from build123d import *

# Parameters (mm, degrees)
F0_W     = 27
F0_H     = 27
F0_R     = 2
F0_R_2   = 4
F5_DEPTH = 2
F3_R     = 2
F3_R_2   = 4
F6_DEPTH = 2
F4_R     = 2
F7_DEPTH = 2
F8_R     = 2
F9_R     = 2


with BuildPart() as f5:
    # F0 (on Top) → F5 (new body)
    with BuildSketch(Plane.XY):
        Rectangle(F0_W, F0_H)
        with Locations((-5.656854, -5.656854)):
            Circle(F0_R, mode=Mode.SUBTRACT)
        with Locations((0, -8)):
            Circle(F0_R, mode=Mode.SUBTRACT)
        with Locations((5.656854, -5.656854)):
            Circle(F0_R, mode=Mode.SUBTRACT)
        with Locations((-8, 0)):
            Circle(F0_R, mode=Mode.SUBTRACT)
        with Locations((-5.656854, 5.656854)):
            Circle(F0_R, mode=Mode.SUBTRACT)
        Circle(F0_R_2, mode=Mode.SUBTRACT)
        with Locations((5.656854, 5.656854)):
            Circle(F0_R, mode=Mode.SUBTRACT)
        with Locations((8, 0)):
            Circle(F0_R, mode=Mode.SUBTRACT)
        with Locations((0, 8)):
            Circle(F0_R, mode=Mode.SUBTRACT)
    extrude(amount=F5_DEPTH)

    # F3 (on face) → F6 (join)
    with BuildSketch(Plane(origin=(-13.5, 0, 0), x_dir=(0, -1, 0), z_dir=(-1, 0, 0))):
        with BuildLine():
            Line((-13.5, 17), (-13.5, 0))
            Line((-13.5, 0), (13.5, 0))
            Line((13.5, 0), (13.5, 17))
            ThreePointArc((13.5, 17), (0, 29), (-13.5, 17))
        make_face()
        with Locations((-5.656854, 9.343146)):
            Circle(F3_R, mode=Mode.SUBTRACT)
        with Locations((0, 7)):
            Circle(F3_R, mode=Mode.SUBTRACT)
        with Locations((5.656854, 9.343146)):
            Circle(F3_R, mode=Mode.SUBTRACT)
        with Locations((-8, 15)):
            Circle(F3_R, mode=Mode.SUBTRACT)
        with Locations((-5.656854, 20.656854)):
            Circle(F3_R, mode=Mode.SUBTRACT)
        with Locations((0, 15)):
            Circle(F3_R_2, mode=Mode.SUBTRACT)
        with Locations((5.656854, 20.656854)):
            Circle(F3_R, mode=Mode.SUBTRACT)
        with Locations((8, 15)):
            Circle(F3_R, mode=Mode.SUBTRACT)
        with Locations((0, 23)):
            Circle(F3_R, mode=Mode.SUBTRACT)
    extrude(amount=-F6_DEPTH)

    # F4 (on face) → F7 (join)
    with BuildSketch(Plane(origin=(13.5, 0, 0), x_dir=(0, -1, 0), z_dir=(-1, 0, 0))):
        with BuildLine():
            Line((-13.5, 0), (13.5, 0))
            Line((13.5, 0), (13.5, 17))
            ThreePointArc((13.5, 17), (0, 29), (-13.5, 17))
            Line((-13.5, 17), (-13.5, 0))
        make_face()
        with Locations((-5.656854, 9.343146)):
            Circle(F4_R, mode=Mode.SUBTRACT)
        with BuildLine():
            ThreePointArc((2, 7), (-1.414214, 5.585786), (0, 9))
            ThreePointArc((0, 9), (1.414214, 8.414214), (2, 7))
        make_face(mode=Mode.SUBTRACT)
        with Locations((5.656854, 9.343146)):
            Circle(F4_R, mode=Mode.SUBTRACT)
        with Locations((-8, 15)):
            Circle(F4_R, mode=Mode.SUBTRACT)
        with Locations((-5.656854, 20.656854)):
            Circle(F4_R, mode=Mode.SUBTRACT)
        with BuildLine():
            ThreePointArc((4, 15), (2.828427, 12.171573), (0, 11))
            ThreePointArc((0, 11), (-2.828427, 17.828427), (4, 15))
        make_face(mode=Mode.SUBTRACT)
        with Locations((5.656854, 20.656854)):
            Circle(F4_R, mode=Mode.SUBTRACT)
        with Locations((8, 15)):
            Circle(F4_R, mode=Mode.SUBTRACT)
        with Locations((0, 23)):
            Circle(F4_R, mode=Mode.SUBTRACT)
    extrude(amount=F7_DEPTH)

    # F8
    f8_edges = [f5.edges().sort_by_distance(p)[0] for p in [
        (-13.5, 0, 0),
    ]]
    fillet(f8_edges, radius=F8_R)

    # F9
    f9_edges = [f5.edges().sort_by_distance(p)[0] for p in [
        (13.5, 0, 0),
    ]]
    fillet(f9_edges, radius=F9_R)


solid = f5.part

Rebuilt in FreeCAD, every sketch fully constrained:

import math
import FreeCAD as App
import Part
import Sketcher


def edges_at(feature, points):
    """Names of the edges that pass closest to the given points."""
    edges = feature.Shape.Edges
    near = lambda p: min(range(len(edges)), key=lambda i: edges[i].distToShape(Part.Vertex(*p))[0])
    return sorted({f"Edge{near(p) + 1}" for p in points})

doc = App.newDocument("Part")
body = doc.addObject("PartDesign::Body", "Body")

sketch1 = doc.addObject("Sketcher::SketchObject", "Sketch")
body.addObject(sketch1)
sketch1.AttachmentSupport = (doc.XY_Plane, [""])
sketch1.MapMode = "FlatFace"
sketch1.addGeometry([
    Part.LineSegment(App.Vector(-13.5, 13.5, 0), App.Vector(-13.5, -13.5, 0)),
    Part.LineSegment(App.Vector(-13.5, -13.5, 0), App.Vector(13.5, -13.5, 0)),
    Part.LineSegment(App.Vector(13.5, -13.5, 0), App.Vector(13.5, 13.5, 0)),
    Part.LineSegment(App.Vector(13.5, 13.5, 0), App.Vector(-13.5, 13.5, 0)),
    Part.Circle(App.Vector(-5.7, -5.7, 0), App.Vector(0, 0, 1), 2),
    Part.Circle(App.Vector(0, -8, 0), App.Vector(0, 0, 1), 2),
    Part.Circle(App.Vector(5.7, -5.7, 0), App.Vector(0, 0, 1), 2),
    Part.Circle(App.Vector(-8, 0, 0), App.Vector(0, 0, 1), 2),
    Part.Circle(App.Vector(-5.7, 5.7, 0), App.Vector(0, 0, 1), 2),
    Part.Circle(App.Vector(0, 0, 0), App.Vector(0, 0, 1), 4),
    Part.Circle(App.Vector(8, 0, 0), App.Vector(0, 0, 1), 2),
    Part.Circle(App.Vector(0, 8, 0), App.Vector(0, 0, 1), 2),
    Part.Circle(App.Vector(5.7, 5.7, 0), App.Vector(0, 0, 1), 2),
], False)
sketch1.addConstraint([
    Sketcher.Constraint("Coincident", 0, 2, 1, 1),
    Sketcher.Constraint("Coincident", 1, 2, 2, 1),
    Sketcher.Constraint("Coincident", 2, 2, 3, 1),
    Sketcher.Constraint("Coincident", 3, 2, 0, 1),
    Sketcher.Constraint("Vertical", 0),
    Sketcher.Constraint("Horizontal", 1),
    Sketcher.Constraint("Vertical", 2),
    Sketcher.Constraint("Horizontal", 3),
    Sketcher.Constraint("Coincident", 9, 3, -1, 1),
    Sketcher.Constraint("Equal", 4, 5),
    Sketcher.Constraint("Equal", 5, 6),
    Sketcher.Constraint("Equal", 6, 7),
    Sketcher.Constraint("Equal", 7, 8),
    Sketcher.Constraint("Equal", 8, 10),
    Sketcher.Constraint("Equal", 10, 11),
    Sketcher.Constraint("Equal", 11, 12),
    Sketcher.Constraint("Symmetric", 6, 3, 8, 3, -1, 1),
    Sketcher.Constraint("Symmetric", 7, 3, 10, 3, -1, 1),
    Sketcher.Constraint("Symmetric", 5, 3, 11, 3, -1, 1),
    Sketcher.Constraint("Symmetric", 4, 3, 12, 3, -1, 1),
    Sketcher.Constraint("Symmetric", 0, 2, 2, 2, -1, 1),
    Sketcher.Constraint("Symmetric", 4, 3, 6, 3, -2),
    Sketcher.Constraint("PointOnObject", 5, 3, -2),
    Sketcher.Constraint("PointOnObject", 7, 3, -1),
    Sketcher.Constraint("Equal", 3, 0),
    Sketcher.Constraint("Diameter", 4, 4.0),
    Sketcher.Constraint("Diameter", 9, 8.0),
    Sketcher.Constraint("DistanceX", 1, 1, 1, 2, 27.0),
    Sketcher.Constraint("DistanceY", 5, 3, -1, 1, 8.0),
    Sketcher.Constraint("DistanceX", 7, 3, -1, 1, 8.0),
    Sketcher.Constraint("DistanceX", 4, 3, -1, 1, 5.656854),
    Sketcher.Constraint("DistanceY", 4, 3, -1, 1, 5.656854),
])
pad1 = doc.addObject("PartDesign::Pad", "Pad")
body.addObject(pad1)
pad1.Profile = sketch1
pad1.Length = 2

sketch2 = doc.addObject("Sketcher::SketchObject", "Sketch001")
body.addObject(sketch2)
sketch2.AttachmentSupport = (doc.YZ_Plane, [""])
sketch2.MapMode = "FlatFace"
sketch2.AttachmentOffset = App.Placement(App.Vector(0, 0, -13.5), App.Rotation())
sketch2.addGeometry([
    Part.LineSegment(App.Vector(13.5, 17, 0), App.Vector(13.5, 0, 0)),
    Part.LineSegment(App.Vector(13.5, 0, 0), App.Vector(-13.5, 0, 0)),
    Part.LineSegment(App.Vector(-13.5, 0, 0), App.Vector(-13.5, 17, 0)),
    Part.ArcOfCircle(Part.Circle(App.Vector(0, 15.4, 0), App.Vector(0, 0, 1), 13.6), math.radians(7), math.radians(173)),
    Part.Circle(App.Vector(5.7, 9.3, 0), App.Vector(0, 0, 1), 2),
    Part.Circle(App.Vector(0, 7, 0), App.Vector(0, 0, 1), 2),
    Part.Circle(App.Vector(-5.7, 9.3, 0), App.Vector(0, 0, 1), 2),
    Part.Circle(App.Vector(8, 15, 0), App.Vector(0, 0, 1), 2),
    Part.Circle(App.Vector(5.7, 20.7, 0), App.Vector(0, 0, 1), 2),
    Part.Circle(App.Vector(0, 15, 0), App.Vector(0, 0, 1), 4),
    Part.Circle(App.Vector(-8, 15, 0), App.Vector(0, 0, 1), 2),
    Part.Circle(App.Vector(0, 23, 0), App.Vector(0, 0, 1), 2),
    Part.Circle(App.Vector(-5.7, 20.7, 0), App.Vector(0, 0, 1), 2),
], False)
sketch2.addConstraint([
    Sketcher.Constraint("Coincident", 0, 2, 1, 1),
    Sketcher.Constraint("Coincident", 1, 2, 2, 1),
    Sketcher.Constraint("Coincident", 2, 2, 3, 2),
    Sketcher.Constraint("Coincident", 3, 1, 0, 1),
    Sketcher.Constraint("Vertical", 0),
    Sketcher.Constraint("Horizontal", 1),
    Sketcher.Constraint("Vertical", 2),
    Sketcher.Constraint("Equal", 4, 5),
    Sketcher.Constraint("Equal", 5, 6),
    Sketcher.Constraint("Equal", 6, 7),
    Sketcher.Constraint("Equal", 7, 8),
    Sketcher.Constraint("Equal", 8, 10),
    Sketcher.Constraint("Equal", 10, 11),
    Sketcher.Constraint("Equal", 11, 12),
    Sketcher.Constraint("Symmetric", 0, 2, 1, 2, -1, 1),
    Sketcher.Constraint("Symmetric", 4, 3, 6, 3, -2),
    Sketcher.Constraint("Symmetric", 7, 3, 10, 3, -2),
    Sketcher.Constraint("Symmetric", 8, 3, 12, 3, -2),
    Sketcher.Constraint("PointOnObject", 3, 3, -2),
    Sketcher.Constraint("PointOnObject", 5, 3, -2),
    Sketcher.Constraint("PointOnObject", 9, 3, -2),
    Sketcher.Constraint("PointOnObject", 11, 3, -2),
    Sketcher.Constraint("Horizontal", 7, 3, 9, 3),
    Sketcher.Constraint("Vertical", 4, 3, 8, 3),
    Sketcher.Constraint("Diameter", 4, 4.0),
    Sketcher.Constraint("Diameter", 9, 8.0),
    Sketcher.Constraint("DistanceX", 1, 2, 1, 1, 27.0),
    Sketcher.Constraint("DistanceY", 0, 2, 0, 1, 17.0),
    Sketcher.Constraint("DistanceY", -1, 1, 5, 3, 7.0),
    Sketcher.Constraint("DistanceX", -1, 1, 7, 3, 8.0),
    Sketcher.Constraint("DistanceY", -1, 1, 7, 3, 15.0),
    Sketcher.Constraint("DistanceY", -1, 1, 11, 3, 23.0),
    Sketcher.Constraint("Radius", 3, 13.59375),
    Sketcher.Constraint("DistanceX", -1, 1, 4, 3, 5.656854),
    Sketcher.Constraint("DistanceY", -1, 1, 4, 3, 9.343146),
    Sketcher.Constraint("DistanceY", -1, 1, 8, 3, 20.656854),
])
pad2 = doc.addObject("PartDesign::Pad", "Pad001")
body.addObject(pad2)
pad2.Profile = sketch2
pad2.Length = 2

sketch3 = doc.addObject("Sketcher::SketchObject", "Sketch002")
body.addObject(sketch3)
sketch3.AttachmentSupport = (doc.YZ_Plane, [""])
sketch3.MapMode = "FlatFace"
sketch3.AttachmentOffset = App.Placement(App.Vector(0, 0, 13.5), App.Rotation())
sketch3.addGeometry([
    Part.LineSegment(App.Vector(13.5, 0, 0), App.Vector(-13.5, 0, 0)),
    Part.LineSegment(App.Vector(-13.5, 0, 0), App.Vector(-13.5, 17, 0)),
    Part.ArcOfCircle(Part.Circle(App.Vector(0, 15.4, 0), App.Vector(0, 0, 1), 13.6), math.radians(7), math.radians(173)),
    Part.LineSegment(App.Vector(13.5, 17, 0), App.Vector(13.5, 0, 0)),
    Part.Circle(App.Vector(5.7, 9.3, 0), App.Vector(0, 0, 1), 2),
    Part.ArcOfCircle(Part.Circle(App.Vector(0, 7, 0), App.Vector(0, 0, 1), 2), math.radians(90), math.radians(180)),
    Part.ArcOfCircle(Part.Circle(App.Vector(0, 7, 0), App.Vector(0, 0, 1), 2), math.radians(180), math.radians(450)),
    Part.Circle(App.Vector(-5.7, 9.3, 0), App.Vector(0, 0, 1), 2),
    Part.Circle(App.Vector(8, 15, 0), App.Vector(0, 0, 1), 2),
    Part.Circle(App.Vector(5.7, 20.7, 0), App.Vector(0, 0, 1), 2),
    Part.ArcOfCircle(Part.Circle(App.Vector(0, 15, 0), App.Vector(0, 0, 1), 4), math.radians(-90), math.radians(180)),
    Part.ArcOfCircle(Part.Circle(App.Vector(0, 15, 0), App.Vector(0, 0, 1), 4), math.radians(-180), math.radians(-90)),
    Part.Circle(App.Vector(-8, 15, 0), App.Vector(0, 0, 1), 2),
    Part.Circle(App.Vector(0, 23, 0), App.Vector(0, 0, 1), 2),
    Part.Circle(App.Vector(-5.7, 20.7, 0), App.Vector(0, 0, 1), 2),
], False)
sketch3.addConstraint([
    Sketcher.Constraint("Coincident", 0, 2, 1, 1),
    Sketcher.Constraint("Coincident", 1, 2, 2, 2),
    Sketcher.Constraint("Coincident", 2, 1, 3, 1),
    Sketcher.Constraint("Coincident", 3, 2, 0, 1),
    Sketcher.Constraint("Tangent", 5, 1, 6, 2),
    Sketcher.Constraint("Coincident", 6, 1, 5, 2),
    Sketcher.Constraint("Tangent", 10, 1, 11, 2),
    Sketcher.Constraint("Coincident", 11, 1, 10, 2),
    Sketcher.Constraint("Horizontal", 0),
    Sketcher.Constraint("Vertical", 1),
    Sketcher.Constraint("Vertical", 3),
    Sketcher.Constraint("Equal", 4, 5),
    Sketcher.Constraint("Equal", 6, 7),
    Sketcher.Constraint("Equal", 7, 8),
    Sketcher.Constraint("Equal", 8, 9),
    Sketcher.Constraint("Equal", 9, 12),
    Sketcher.Constraint("Equal", 12, 13),
    Sketcher.Constraint("Equal", 13, 14),
    Sketcher.Constraint("Symmetric", 0, 2, 3, 2, -1, 1),
    Sketcher.Constraint("Symmetric", 4, 3, 7, 3, -2),
    Sketcher.Constraint("Symmetric", 8, 3, 12, 3, -2),
    Sketcher.Constraint("Symmetric", 9, 3, 14, 3, -2),
    Sketcher.Constraint("PointOnObject", 2, 3, -2),
    Sketcher.Constraint("PointOnObject", 5, 3, -2),
    Sketcher.Constraint("PointOnObject", 10, 3, -2),
    Sketcher.Constraint("PointOnObject", 13, 3, -2),
    Sketcher.Constraint("PointOnObject", 5, 1, -2),
    Sketcher.Constraint("PointOnObject", 10, 1, -2),
    Sketcher.Constraint("Horizontal", 8, 3, 10, 3),
    Sketcher.Constraint("Horizontal", 5, 3, 6, 1),
    Sketcher.Constraint("Horizontal", 12, 3, 11, 1),
    Sketcher.Constraint("Vertical", 4, 3, 9, 3),
    Sketcher.Constraint("Diameter", 4, 4.0),
    Sketcher.Constraint("Radius", 10, 4.0),
    Sketcher.Constraint("DistanceX", 0, 2, 0, 1, 27.0),
    Sketcher.Constraint("DistanceY", 1, 1, 1, 2, 17.0),
    Sketcher.Constraint("DistanceY", -1, 1, 5, 3, 7.000001),
    Sketcher.Constraint("DistanceX", -1, 1, 8, 3, 8.0),
    Sketcher.Constraint("DistanceY", -1, 1, 8, 3, 15.0),
    Sketcher.Constraint("DistanceY", -1, 1, 13, 3, 23.0),
    Sketcher.Constraint("Radius", 2, 13.59375),
    Sketcher.Constraint("DistanceX", -1, 1, 4, 3, 5.656854),
    Sketcher.Constraint("DistanceY", -1, 1, 4, 3, 9.343146),
    Sketcher.Constraint("DistanceY", -1, 1, 9, 3, 20.656854),
])
pad3 = doc.addObject("PartDesign::Pad", "Pad002")
body.addObject(pad3)
pad3.Profile = sketch3
pad3.Length = 2
pad3.Reversed = True
doc.recompute()

fillet = doc.addObject("PartDesign::Fillet", "Fillet")
body.addObject(fillet)
fillet.Base = (pad3, edges_at(pad3, [(-13.5, 0, 0)]))
fillet.Radius = 2
doc.recompute()

fillet2 = doc.addObject("PartDesign::Fillet", "Fillet001")
body.addObject(fillet2)
fillet2.Base = (fillet, edges_at(fillet, [(13.5, 0, 0)]))
fillet2.Radius = 2

doc.recompute()
